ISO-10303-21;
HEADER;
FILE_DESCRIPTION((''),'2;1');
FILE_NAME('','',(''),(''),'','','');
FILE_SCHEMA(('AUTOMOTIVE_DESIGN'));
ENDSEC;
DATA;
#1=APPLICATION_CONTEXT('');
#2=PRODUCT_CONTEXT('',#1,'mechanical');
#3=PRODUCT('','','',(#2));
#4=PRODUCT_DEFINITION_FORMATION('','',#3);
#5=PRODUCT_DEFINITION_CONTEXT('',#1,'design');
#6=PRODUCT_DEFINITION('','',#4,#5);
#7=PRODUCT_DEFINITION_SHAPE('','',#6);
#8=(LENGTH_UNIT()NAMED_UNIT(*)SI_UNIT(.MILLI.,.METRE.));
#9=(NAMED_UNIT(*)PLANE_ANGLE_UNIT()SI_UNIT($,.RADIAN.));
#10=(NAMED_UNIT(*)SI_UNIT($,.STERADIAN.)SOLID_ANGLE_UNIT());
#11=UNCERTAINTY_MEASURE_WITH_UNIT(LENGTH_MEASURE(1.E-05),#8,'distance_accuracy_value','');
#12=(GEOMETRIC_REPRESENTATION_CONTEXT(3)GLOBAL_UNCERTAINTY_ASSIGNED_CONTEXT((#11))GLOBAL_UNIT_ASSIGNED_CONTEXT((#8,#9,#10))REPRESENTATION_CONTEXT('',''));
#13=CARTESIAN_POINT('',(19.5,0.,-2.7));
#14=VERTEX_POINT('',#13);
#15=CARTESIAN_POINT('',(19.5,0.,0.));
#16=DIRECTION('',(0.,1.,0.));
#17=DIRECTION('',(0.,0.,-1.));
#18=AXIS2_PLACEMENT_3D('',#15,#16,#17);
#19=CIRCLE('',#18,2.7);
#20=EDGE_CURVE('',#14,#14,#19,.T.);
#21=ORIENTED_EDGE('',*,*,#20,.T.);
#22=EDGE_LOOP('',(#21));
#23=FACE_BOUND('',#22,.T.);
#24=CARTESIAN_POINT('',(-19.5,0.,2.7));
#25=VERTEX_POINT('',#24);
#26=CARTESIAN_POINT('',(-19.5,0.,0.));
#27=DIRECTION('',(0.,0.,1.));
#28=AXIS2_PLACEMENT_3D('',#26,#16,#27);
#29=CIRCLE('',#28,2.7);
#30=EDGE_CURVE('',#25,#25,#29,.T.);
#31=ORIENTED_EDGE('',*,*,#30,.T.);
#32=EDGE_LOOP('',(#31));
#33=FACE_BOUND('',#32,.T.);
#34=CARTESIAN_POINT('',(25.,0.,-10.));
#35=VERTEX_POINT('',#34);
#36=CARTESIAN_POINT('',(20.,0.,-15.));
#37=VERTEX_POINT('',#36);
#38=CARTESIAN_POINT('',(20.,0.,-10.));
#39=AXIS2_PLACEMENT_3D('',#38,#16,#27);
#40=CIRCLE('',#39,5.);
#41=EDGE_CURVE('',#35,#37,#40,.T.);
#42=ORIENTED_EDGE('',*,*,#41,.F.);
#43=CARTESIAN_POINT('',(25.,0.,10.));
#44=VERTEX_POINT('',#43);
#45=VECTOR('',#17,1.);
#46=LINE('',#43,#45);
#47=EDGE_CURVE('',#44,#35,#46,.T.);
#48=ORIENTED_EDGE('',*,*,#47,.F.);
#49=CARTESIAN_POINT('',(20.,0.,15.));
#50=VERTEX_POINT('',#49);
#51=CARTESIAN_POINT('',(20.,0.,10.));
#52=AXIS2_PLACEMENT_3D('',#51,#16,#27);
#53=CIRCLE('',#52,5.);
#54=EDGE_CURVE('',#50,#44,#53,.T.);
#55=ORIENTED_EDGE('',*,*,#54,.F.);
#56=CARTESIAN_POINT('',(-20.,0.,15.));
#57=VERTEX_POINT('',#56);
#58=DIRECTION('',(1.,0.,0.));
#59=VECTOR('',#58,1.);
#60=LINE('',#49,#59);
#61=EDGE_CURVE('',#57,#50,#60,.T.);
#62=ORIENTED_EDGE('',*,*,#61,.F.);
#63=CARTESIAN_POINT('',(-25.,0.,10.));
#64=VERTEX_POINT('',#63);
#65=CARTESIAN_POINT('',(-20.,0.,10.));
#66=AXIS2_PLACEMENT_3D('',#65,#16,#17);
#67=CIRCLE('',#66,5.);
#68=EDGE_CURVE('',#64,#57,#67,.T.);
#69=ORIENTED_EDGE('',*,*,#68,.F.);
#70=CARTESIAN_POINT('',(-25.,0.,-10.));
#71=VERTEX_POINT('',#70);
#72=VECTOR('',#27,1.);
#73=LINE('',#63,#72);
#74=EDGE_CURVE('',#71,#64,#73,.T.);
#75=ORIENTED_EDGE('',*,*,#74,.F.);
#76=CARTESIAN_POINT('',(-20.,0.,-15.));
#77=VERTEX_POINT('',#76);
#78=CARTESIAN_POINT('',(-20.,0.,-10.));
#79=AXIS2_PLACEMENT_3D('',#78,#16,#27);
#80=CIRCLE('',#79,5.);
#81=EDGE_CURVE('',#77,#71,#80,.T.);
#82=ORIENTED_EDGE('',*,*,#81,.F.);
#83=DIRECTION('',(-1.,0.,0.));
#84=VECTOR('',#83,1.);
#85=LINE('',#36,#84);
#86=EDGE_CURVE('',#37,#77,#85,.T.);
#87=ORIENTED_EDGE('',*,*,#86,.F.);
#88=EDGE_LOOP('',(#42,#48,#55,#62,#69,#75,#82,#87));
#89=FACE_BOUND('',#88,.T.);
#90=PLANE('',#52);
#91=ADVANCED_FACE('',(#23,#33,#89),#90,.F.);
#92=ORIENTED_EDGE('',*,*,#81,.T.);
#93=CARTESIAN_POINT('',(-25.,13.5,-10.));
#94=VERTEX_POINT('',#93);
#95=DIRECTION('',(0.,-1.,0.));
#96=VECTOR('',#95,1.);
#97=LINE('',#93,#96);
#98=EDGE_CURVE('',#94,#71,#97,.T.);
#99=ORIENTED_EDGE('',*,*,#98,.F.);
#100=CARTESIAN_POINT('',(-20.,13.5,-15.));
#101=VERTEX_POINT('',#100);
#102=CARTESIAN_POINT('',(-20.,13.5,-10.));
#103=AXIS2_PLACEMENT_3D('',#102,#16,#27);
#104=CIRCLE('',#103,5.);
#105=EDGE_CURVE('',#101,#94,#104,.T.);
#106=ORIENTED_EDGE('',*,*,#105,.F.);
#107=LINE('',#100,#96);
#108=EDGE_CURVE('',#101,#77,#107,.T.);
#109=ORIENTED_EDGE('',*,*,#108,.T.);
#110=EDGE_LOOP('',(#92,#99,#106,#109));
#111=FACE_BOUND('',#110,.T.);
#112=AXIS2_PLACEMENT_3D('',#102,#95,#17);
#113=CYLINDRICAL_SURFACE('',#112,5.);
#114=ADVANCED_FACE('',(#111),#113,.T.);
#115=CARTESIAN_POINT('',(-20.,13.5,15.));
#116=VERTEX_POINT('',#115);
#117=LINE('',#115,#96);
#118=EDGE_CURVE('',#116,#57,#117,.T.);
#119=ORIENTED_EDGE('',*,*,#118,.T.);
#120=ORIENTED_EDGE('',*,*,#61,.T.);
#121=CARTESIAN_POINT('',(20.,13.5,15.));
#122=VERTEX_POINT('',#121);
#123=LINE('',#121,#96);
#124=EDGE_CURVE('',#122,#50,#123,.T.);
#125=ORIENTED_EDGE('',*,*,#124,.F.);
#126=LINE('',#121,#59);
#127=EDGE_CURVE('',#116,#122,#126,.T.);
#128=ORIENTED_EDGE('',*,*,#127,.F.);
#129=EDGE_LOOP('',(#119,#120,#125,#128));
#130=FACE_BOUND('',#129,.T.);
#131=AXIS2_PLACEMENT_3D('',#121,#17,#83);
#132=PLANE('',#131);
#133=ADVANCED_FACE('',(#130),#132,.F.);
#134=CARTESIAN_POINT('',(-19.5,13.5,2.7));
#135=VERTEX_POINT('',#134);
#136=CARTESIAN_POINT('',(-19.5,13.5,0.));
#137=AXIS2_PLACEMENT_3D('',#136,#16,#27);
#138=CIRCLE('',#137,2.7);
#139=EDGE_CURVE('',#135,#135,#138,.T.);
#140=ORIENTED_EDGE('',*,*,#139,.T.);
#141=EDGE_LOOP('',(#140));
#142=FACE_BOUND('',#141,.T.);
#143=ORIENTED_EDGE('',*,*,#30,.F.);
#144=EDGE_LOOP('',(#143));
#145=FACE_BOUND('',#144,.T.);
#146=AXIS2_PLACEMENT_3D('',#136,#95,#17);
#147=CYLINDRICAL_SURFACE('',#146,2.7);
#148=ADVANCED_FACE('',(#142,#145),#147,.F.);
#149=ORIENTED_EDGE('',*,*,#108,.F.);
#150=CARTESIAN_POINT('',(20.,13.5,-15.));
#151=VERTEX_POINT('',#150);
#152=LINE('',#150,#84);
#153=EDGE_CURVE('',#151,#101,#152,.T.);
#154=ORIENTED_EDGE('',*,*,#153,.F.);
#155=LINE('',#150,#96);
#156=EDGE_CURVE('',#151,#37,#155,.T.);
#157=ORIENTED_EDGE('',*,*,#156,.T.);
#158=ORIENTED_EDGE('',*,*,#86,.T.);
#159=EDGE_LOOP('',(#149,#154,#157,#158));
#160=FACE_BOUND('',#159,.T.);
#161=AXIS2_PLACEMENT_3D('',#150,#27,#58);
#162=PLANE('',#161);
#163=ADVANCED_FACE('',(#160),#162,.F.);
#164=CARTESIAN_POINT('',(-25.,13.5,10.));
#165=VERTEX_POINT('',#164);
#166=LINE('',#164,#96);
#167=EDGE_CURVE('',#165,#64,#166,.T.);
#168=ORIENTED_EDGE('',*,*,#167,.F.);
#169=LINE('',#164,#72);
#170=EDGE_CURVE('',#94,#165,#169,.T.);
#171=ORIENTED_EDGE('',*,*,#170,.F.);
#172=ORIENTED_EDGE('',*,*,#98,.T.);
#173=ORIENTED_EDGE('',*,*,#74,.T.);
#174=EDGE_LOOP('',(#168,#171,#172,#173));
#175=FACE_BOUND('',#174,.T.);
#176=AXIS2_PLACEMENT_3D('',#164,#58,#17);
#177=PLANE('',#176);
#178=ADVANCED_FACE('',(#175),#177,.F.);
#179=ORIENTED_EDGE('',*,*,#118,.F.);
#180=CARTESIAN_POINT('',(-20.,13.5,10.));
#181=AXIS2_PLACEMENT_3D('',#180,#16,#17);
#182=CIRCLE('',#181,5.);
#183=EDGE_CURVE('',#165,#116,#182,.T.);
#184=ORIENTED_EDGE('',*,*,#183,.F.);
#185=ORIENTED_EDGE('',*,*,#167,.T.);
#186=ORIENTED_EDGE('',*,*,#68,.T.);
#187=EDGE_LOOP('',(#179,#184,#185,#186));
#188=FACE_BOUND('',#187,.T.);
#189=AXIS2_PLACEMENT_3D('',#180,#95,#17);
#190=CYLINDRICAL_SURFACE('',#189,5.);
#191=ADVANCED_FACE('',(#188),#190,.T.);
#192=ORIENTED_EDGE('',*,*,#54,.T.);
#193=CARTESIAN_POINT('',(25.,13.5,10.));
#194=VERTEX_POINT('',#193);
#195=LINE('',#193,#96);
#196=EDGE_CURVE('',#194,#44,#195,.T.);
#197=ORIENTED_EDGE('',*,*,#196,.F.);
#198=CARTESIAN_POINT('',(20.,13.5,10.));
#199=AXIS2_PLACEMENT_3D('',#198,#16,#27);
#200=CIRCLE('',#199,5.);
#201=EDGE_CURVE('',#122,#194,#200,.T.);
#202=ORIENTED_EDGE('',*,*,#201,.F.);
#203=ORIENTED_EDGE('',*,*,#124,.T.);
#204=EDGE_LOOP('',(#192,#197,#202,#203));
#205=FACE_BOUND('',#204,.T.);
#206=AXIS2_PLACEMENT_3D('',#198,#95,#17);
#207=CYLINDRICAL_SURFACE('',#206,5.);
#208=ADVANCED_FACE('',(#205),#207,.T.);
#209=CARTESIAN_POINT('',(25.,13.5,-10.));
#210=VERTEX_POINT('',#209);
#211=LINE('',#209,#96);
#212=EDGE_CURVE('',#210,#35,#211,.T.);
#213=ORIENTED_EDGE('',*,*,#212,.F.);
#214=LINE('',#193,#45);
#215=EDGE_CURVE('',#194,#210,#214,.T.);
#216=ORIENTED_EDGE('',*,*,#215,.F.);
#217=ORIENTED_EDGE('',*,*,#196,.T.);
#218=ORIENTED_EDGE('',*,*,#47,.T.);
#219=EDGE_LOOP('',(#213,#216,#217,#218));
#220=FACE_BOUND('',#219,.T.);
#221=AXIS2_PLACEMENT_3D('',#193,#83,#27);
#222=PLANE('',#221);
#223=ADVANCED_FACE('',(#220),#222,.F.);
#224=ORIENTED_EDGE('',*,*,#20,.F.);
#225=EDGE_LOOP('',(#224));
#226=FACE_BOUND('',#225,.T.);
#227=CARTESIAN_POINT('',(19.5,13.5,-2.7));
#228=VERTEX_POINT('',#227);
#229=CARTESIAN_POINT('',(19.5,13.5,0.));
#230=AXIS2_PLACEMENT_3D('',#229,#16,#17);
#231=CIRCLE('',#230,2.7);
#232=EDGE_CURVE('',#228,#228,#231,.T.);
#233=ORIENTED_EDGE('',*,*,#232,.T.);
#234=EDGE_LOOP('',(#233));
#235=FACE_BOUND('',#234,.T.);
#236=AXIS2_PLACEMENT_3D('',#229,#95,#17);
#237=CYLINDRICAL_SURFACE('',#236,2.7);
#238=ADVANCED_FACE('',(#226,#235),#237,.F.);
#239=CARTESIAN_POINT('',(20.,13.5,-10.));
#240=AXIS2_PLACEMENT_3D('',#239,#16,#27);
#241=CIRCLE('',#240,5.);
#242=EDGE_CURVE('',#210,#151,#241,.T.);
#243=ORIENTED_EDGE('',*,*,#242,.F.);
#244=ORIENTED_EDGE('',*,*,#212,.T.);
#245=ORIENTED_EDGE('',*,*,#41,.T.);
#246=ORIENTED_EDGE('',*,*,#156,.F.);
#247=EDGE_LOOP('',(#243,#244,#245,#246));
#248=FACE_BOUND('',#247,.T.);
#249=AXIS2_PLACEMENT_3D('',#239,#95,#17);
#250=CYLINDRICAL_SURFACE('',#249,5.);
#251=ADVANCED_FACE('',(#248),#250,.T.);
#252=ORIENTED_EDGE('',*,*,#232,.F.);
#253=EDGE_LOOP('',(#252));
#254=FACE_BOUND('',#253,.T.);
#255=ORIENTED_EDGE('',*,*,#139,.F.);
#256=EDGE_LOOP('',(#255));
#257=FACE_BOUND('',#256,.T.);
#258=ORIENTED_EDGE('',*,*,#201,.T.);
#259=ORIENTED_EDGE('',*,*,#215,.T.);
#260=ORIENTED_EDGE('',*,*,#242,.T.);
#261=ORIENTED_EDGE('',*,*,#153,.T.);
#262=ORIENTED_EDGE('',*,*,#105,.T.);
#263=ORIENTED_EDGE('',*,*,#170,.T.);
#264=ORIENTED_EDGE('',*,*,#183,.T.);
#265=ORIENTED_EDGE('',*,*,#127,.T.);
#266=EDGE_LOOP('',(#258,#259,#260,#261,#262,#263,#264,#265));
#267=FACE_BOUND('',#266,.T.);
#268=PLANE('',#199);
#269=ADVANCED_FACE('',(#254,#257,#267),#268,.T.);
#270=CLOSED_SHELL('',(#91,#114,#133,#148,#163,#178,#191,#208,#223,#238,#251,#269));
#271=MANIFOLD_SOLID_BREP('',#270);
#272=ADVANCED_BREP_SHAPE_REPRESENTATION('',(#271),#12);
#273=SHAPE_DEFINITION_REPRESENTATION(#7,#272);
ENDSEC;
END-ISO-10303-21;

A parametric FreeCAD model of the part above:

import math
import FreeCAD as App
import Part
import Sketcher

V = App.Vector

doc = App.newDocument("Part")
params = doc.addObject("Spreadsheet::Sheet", "Params")
for row, (alias, value) in enumerate([
    ("sketch1_radius", "5 mm"),
    ("sketch1_diameter", "5.4 mm"),
    ("sketch1_width", "40 mm"),
    ("sketch1_height", "20 mm"),
    ("pad1_length", "13.5 mm"),
], start=1):
    params.set(f"A{row}", alias)
    params.set(f"B{row}", "=" + value)
    params.setAlias(f"B{row}", alias)

body = doc.addObject("PartDesign::Body", "Body")

# Sketch on XZ plane
sketch1 = doc.addObject("Sketcher::SketchObject", "Sketch")
body.addObject(sketch1)
sketch1.AttachmentSupport = (doc.XZ_Plane, [""])
sketch1.MapMode = "FlatFace"
sketch1.addGeometry(Part.LineSegment(V(-20, 15, 0), V(20, 15, 0)), False)
sketch1.addGeometry(Part.ArcOfCircle(Part.Circle(V(20, 10, 0), V(0, 0, 1), 5), math.radians(0), math.radians(90)), False)
sketch1.addGeometry(Part.LineSegment(V(25, 10, 0), V(25, -10, 0)), False)
sketch1.addGeometry(Part.ArcOfCircle(Part.Circle(V(20, -10, 0), V(0, 0, 1), 5), math.radians(-90), math.radians(0)), False)
sketch1.addGeometry(Part.LineSegment(V(20, -15, 0), V(-20, -15, 0)), False)
sketch1.addGeometry(Part.ArcOfCircle(Part.Circle(V(-20, -10, 0), V(0, 0, 1), 5), math.radians(180), math.radians(270)), False)
sketch1.addGeometry(Part.LineSegment(V(-25, -10, 0), V(-25, 10, 0)), False)
sketch1.addGeometry(Part.ArcOfCircle(Part.Circle(V(-20, 10, 0), V(0, 0, 1), 5), math.radians(90), math.radians(180)), False)
sketch1.addGeometry(Part.Circle(V(19.5, 0, 0), V(0, 0, 1), 2.7), False)
sketch1.addGeometry(Part.Circle(V(-19.5, 0, 0), V(0, 0, 1), 2.7), False)
sketch1.addConstraint(Sketcher.Constraint("Tangent", 0, 2, 1, 2))
sketch1.addConstraint(Sketcher.Constraint("Tangent", 1, 1, 2, 1))
sketch1.addConstraint(Sketcher.Constraint("Tangent", 2, 2, 3, 2))
sketch1.addConstraint(Sketcher.Constraint("Tangent", 3, 1, 4, 1))
sketch1.addConstraint(Sketcher.Constraint("Tangent", 4, 2, 5, 2))
sketch1.addConstraint(Sketcher.Constraint("Tangent", 5, 1, 6, 1))
sketch1.addConstraint(Sketcher.Constraint("Tangent", 6, 2, 7, 2))
sketch1.addConstraint(Sketcher.Constraint("Tangent", 7, 1, 0, 1))
sketch1.addConstraint(Sketcher.Constraint("Horizontal", 0))
sketch1.addConstraint(Sketcher.Constraint("Vertical", 2))
sketch1.addConstraint(Sketcher.Constraint("Horizontal", 4))
sketch1.addConstraint(Sketcher.Constraint("Vertical", 6))
sketch1.addConstraint(Sketcher.Constraint("Equal", 1, 3))
sketch1.addConstraint(Sketcher.Constraint("Equal", 3, 5))
sketch1.addConstraint(Sketcher.Constraint("Equal", 5, 7))
sketch1.addConstraint(Sketcher.Constraint("Equal", 8, 9))
sketch1.addConstraint(Sketcher.Constraint("Symmetric", 1, 3, 5, 3, -1, 1))
sketch1.addConstraint(Sketcher.Constraint("Symmetric", 8, 3, 9, 3, -1, 1))
sketch1.addConstraint(Sketcher.Constraint("PointOnObject", 8, 3, -1))
sketch1.addConstraint(Sketcher.Constraint("Radius", 1, 5.0))
sketch1.addConstraint(Sketcher.Constraint("Diameter", 8, 5.4))
sketch1.addConstraint(Sketcher.Constraint("DistanceX", 0, 1, 0, 2, 40.0))
sketch1.addConstraint(Sketcher.Constraint("DistanceY", 2, 2, 2, 1, 20.0))
sketch1.addConstraint(Sketcher.Constraint("DistanceX", 9, 3, 8, 3, 39.0))
sketch1.setExpression("Constraints[19]", "Params.sketch1_radius")
sketch1.setExpression("Constraints[20]", "Params.sketch1_diameter")
sketch1.setExpression("Constraints[21]", "Params.sketch1_width")
sketch1.setExpression("Constraints[22]", "Params.sketch1_height")
pad1 = doc.addObject("PartDesign::Pad", "Pad")
body.addObject(pad1)
pad1.Profile = sketch1
pad1.setExpression("Length", "Params.pad1_length")
pad1.Reversed = True

doc.recompute()
